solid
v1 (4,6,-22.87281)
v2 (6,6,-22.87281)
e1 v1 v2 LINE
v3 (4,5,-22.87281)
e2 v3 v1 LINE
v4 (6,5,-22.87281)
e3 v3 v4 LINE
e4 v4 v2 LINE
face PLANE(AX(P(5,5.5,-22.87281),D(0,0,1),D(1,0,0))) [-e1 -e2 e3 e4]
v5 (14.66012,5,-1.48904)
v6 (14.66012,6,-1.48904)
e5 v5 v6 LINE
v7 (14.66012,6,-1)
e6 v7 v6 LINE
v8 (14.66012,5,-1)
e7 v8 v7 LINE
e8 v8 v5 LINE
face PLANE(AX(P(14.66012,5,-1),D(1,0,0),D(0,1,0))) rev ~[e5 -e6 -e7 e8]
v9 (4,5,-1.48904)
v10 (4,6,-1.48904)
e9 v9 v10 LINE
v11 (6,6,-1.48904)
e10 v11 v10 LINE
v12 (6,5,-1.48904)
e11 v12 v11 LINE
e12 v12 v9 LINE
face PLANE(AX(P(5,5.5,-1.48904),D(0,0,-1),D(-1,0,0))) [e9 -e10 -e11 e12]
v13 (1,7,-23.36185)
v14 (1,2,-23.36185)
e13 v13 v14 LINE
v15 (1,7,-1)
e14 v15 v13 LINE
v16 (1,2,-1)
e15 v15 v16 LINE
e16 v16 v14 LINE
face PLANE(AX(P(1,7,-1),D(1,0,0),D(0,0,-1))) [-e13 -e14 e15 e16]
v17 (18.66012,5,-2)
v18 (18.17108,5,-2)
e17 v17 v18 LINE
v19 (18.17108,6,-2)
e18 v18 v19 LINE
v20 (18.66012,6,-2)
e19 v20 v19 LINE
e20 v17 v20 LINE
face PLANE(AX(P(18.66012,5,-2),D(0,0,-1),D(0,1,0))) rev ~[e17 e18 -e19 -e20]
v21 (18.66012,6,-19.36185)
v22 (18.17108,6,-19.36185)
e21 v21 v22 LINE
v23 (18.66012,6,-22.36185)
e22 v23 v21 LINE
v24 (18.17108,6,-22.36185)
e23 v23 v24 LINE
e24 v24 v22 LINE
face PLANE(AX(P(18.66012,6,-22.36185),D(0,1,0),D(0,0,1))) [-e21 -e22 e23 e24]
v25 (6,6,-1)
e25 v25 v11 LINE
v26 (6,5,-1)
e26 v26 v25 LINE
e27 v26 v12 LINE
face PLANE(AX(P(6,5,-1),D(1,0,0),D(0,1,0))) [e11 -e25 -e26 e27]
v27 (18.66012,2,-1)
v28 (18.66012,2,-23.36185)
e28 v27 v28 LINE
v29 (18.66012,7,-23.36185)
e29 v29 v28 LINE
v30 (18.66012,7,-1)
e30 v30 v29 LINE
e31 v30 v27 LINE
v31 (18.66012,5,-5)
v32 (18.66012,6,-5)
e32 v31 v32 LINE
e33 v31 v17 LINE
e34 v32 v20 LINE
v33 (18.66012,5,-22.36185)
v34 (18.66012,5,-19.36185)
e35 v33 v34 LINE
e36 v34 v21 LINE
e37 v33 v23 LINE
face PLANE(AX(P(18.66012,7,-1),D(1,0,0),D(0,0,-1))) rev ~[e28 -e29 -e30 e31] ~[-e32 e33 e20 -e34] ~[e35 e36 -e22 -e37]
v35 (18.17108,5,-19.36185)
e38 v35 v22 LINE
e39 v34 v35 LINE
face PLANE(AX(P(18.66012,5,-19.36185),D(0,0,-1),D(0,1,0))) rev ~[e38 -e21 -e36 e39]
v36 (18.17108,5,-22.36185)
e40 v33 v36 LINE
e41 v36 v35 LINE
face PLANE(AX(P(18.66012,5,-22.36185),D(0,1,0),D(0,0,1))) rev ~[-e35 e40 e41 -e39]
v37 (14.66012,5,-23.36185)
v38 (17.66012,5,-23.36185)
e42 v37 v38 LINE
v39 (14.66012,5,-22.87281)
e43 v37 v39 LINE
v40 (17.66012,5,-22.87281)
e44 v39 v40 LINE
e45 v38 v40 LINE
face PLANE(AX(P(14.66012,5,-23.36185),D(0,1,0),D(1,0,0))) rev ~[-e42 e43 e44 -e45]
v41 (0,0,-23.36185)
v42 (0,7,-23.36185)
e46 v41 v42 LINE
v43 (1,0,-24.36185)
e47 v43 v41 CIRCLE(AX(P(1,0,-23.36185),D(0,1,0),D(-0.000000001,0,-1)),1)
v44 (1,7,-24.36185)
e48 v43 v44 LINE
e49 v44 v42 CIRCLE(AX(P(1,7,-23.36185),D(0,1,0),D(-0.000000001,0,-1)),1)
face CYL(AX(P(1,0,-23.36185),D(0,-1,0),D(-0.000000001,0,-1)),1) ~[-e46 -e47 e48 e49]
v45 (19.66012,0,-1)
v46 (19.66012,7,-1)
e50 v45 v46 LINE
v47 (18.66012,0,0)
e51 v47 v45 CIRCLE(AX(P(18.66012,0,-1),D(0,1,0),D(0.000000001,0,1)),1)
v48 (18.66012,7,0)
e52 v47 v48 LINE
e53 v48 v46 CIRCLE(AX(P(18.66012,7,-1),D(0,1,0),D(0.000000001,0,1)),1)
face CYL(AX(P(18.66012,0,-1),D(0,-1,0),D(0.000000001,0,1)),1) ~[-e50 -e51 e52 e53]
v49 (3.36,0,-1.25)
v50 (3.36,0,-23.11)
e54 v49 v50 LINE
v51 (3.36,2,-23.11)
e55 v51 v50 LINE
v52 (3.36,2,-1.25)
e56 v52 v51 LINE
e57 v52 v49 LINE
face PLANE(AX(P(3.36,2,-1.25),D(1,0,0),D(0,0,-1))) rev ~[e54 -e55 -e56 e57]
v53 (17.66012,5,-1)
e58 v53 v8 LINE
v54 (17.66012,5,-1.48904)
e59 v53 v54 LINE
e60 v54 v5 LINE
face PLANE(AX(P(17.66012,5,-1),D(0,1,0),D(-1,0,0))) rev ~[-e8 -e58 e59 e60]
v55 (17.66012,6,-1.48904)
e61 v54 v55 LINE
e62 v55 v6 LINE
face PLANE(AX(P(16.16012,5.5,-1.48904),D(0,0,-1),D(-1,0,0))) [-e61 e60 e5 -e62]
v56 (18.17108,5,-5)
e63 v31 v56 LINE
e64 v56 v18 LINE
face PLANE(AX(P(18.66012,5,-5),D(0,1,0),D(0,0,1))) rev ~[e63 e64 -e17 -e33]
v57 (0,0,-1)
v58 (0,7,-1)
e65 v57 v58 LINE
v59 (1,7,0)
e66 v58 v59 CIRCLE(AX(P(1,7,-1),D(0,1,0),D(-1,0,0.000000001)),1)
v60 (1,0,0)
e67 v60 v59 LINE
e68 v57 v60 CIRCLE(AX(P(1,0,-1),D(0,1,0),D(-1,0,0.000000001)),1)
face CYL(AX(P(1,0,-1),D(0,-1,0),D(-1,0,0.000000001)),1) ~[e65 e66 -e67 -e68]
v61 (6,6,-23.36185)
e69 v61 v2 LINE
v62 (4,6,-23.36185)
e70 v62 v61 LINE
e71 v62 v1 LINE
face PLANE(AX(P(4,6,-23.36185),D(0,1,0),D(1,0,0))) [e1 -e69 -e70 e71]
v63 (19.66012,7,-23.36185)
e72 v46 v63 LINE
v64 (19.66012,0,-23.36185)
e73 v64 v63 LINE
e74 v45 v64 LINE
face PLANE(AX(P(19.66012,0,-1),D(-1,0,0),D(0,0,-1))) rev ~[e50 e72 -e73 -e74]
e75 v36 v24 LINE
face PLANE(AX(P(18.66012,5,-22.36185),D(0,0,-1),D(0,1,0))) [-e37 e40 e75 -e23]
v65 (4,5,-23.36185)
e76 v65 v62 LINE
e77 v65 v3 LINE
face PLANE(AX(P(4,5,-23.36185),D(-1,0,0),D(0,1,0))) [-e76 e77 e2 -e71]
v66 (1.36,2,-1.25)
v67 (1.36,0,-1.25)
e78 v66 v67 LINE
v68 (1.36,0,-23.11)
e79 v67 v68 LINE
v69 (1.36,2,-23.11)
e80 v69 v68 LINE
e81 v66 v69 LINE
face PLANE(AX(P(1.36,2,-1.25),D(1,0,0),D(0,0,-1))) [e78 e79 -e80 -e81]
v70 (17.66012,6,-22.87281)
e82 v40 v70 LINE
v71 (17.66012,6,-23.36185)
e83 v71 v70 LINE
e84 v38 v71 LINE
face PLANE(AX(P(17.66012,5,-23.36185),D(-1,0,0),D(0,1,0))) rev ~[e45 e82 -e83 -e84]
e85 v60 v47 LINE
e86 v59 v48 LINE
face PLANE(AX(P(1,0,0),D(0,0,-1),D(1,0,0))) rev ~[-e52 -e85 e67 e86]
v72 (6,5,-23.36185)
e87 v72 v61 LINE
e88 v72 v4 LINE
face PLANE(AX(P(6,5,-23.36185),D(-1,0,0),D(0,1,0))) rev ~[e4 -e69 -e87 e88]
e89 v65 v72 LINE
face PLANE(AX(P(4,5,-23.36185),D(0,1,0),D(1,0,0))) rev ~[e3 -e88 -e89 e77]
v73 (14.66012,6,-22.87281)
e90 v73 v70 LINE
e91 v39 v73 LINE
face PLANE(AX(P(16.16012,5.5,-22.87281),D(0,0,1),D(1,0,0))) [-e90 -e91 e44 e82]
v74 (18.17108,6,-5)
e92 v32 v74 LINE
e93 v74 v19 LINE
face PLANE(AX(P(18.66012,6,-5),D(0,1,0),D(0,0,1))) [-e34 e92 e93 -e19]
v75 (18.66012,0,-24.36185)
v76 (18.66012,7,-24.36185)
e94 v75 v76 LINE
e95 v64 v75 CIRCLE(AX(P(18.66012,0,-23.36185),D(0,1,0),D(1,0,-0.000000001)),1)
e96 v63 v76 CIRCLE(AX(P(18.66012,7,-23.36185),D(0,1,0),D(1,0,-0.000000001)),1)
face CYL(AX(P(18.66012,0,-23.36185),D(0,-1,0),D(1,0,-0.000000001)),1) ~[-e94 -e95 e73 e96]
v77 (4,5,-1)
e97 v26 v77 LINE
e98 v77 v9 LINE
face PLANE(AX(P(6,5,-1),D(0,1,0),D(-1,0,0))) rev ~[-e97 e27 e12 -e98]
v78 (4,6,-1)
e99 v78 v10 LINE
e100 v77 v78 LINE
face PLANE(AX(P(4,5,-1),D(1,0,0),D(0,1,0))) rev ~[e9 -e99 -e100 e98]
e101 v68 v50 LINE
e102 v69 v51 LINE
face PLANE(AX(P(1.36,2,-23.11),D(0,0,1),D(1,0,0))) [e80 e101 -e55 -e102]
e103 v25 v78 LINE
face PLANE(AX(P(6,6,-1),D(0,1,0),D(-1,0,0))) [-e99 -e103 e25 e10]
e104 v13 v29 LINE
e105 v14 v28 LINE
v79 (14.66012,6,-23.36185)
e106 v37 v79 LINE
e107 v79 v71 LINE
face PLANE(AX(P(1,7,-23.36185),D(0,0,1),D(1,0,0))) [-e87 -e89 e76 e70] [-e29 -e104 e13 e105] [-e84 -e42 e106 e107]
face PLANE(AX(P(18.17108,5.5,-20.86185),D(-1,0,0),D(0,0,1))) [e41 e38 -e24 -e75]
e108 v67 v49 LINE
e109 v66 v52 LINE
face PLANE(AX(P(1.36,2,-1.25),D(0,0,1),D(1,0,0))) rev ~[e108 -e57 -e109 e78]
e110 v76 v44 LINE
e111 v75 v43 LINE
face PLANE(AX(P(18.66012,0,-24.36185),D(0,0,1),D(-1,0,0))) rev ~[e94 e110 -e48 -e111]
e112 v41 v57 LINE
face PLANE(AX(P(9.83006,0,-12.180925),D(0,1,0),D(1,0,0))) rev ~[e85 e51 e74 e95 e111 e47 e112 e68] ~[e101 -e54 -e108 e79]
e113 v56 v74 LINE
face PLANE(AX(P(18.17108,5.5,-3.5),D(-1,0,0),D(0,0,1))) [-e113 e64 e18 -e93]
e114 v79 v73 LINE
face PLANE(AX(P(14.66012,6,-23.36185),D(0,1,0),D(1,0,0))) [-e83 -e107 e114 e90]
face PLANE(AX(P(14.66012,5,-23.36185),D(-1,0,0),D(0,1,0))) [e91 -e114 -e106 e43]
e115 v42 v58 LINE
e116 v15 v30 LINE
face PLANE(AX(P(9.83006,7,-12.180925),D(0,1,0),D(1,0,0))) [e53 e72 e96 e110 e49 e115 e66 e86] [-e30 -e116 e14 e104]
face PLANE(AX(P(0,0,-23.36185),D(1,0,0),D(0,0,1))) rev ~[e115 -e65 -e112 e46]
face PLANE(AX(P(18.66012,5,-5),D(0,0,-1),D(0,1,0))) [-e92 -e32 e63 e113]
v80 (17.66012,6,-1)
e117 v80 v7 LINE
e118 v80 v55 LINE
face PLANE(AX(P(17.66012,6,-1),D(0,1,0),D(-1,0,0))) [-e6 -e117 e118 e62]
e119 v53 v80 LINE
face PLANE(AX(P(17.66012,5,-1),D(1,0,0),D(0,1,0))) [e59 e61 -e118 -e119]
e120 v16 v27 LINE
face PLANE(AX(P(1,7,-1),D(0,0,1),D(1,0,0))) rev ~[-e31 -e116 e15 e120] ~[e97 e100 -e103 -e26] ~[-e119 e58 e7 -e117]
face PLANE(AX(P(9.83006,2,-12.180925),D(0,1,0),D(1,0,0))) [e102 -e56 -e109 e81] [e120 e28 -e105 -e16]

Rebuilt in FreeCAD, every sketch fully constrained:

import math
import FreeCAD as App
import Part
import Sketcher

V = App.Vector


def add_polygon(sketch, points):
    """Adds a closed chain of lines whose ends are joined by coincident constraints."""
    first, n = sketch.GeometryCount, len(points)
    for a, b in zip(points, points[1:] + points[:1]):
        sketch.addGeometry(Part.LineSegment(App.Vector(*a, 0), App.Vector(*b, 0)), False)
    for i in range(n):
        sketch.addConstraint(Sketcher.Constraint("Coincident", first + i, 2, first + (i + 1) % n, 1))

doc = App.newDocument("Part")
params = doc.addObject("Spreadsheet::Sheet", "Params")
for row, (alias, value) in enumerate([
    ("sketch1_radius", "1 mm"),
    ("pad1_length", "7 mm"),
    ("pocket1_length", "5 mm"),
    ("sketch3_width", "2 mm"),
    ("sketch3_height", "21.86 mm"),
    ("sketch4_width", "3 mm"),
    ("sketch4_height", "1 mm"),
    ("pad2_length", "0.48904 mm"),
    ("sketch5_width", "1 mm"),
    ("sketch5_height", "3 mm"),
    ("pad3_length", "0.48904 mm"),
    ("sketch6_width", "3 mm"),
    ("sketch6_height", "1 mm"),
    ("pad4_length", "0.48904 mm"),
    ("sketch7_width", "1 mm"),
    ("sketch7_height", "3 mm"),
    ("pad5_length", "0.48904 mm"),
    ("sketch8_width", "2 mm"),
    ("sketch8_height", "1 mm"),
    ("pad6_length", "0.48904 mm"),
    ("sketch9_width", "2 mm"),
    ("sketch9_height", "1 mm"),
    ("pad7_length", "0.48904 mm"),
], start=1):
    params.set(f"A{row}", alias)
    params.set(f"B{row}", "=" + value)
    params.setAlias(f"B{row}", alias)

body = doc.addObject("PartDesign::Body", "Body")

# Sketch on XZ plane
sketch1 = body.newObject("Sketcher::SketchObject", "Sketch")
sketch1.AttachmentSupport = (doc.getObject("XZ_Plane"), [""])
sketch1.MapMode = "FlatFace"
sketch1.addGeometry(Part.LineSegment(V(1, 0, 0), V(18.7, 0, 0)), False)
sketch1.addGeometry(Part.ArcOfCircle(Part.Circle(V(18.7, -1, 0), V(0, 0, 1), 1), math.radians(0), math.radians(90)), False)
sketch1.addGeometry(Part.LineSegment(V(19.7, -1, 0), V(19.7, -23.4, 0)), False)
sketch1.addGeometry(Part.ArcOfCircle(Part.Circle(V(18.7, -23.4, 0), V(0, 0, 1), 1), math.radians(-90), math.radians(0)), False)
sketch1.addGeometry(Part.LineSegment(V(18.7, -24.4, 0), V(1, -24.4, 0)), False)
sketch1.addGeometry(Part.ArcOfCircle(Part.Circle(V(1, -23.4, 0), V(0, 0, 1), 1), math.radians(-180), math.radians(-90)), False)
sketch1.addGeometry(Part.LineSegment(V(0, -23.4, 0), V(0, -1, 0)), False)
sketch1.addGeometry(Part.ArcOfCircle(Part.Circle(V(1, -1, 0), V(0, 0, 1), 1), math.radians(90), math.radians(180)), False)
sketch1.addConstraint(Sketcher.Constraint("Tangent", 0, 2, 1, 2))
sketch1.addConstraint(Sketcher.Constraint("Tangent", 1, 1, 2, 1))
sketch1.addConstraint(Sketcher.Constraint("Tangent", 2, 2, 3, 2))
sketch1.addConstraint(Sketcher.Constraint("Tangent", 3, 1, 4, 1))
sketch1.addConstraint(Sketcher.Constraint("Tangent", 4, 2, 5, 2))
sketch1.addConstraint(Sketcher.Constraint("Tangent", 5, 1, 6, 1))
sketch1.addConstraint(Sketcher.Constraint("Tangent", 6, 2, 7, 2))
sketch1.addConstraint(Sketcher.Constraint("Tangent", 7, 1, 0, 1))
sketch1.addConstraint(Sketcher.Constraint("Horizontal", 0))
sketch1.addConstraint(Sketcher.Constraint("Vertical", 2))
sketch1.addConstraint(Sketcher.Constraint("Horizontal", 4))
sketch1.addConstraint(Sketcher.Constraint("Vertical", 6))
sketch1.addConstraint(Sketcher.Constraint("Equal", 1, 3))
sketch1.addConstraint(Sketcher.Constraint("Equal", 3, 5))
sketch1.addConstraint(Sketcher.Constraint("Equal", 5, 7))
sketch1.addConstraint(Sketcher.Constraint("PointOnObject", 0, 2, -1))
sketch1.addConstraint(Sketcher.Constraint("PointOnObject", 5, 1, -2))
sketch1.addConstraint(Sketcher.Constraint("Radius", 1, 1.0))
sketch1.addConstraint(Sketcher.Constraint("DistanceX", 0, 1, 0, 2, 17.66012))
sketch1.addConstraint(Sketcher.Constraint("DistanceY", 2, 2, 2, 1, 22.36185))
sketch1.setExpression("Constraints[17]", "Params.sketch1_radius")
pad1 = body.newObject("PartDesign::Pad", "Pad")
pad1.Profile = sketch1
pad1.setExpression("Length", "Params.pad1_length")
pad1.Reversed = True

# Sketch on XZ plane
sketch2 = body.newObject("Sketcher::SketchObject", "Sketch001")
sketch2.AttachmentSupport = (doc.getObject("XZ_Plane"), [""])
sketch2.MapMode = "FlatFace"
sketch2.AttachmentOffset = App.Placement(V(0, 0, -7), App.Rotation())
add_polygon(sketch2, [(1, -23), (1, -1), (19, -1), (19, -23)])  # lines 0-3
sketch2.addConstraint(Sketcher.Constraint("Vertical", 0))
sketch2.addConstraint(Sketcher.Constraint("Horizontal", 1))
sketch2.addConstraint(Sketcher.Constraint("Vertical", 2))
sketch2.addConstraint(Sketcher.Constraint("Horizontal", 3))
sketch2.addConstraint(Sketcher.Constraint("DistanceX", -1, 1, 0, 2, 1.0))
sketch2.addConstraint(Sketcher.Constraint("DistanceY", 0, 2, -1, 1, 1.0))
sketch2.addConstraint(Sketcher.Constraint("DistanceX", 1, 1, 1, 2, 17.66012))
sketch2.addConstraint(Sketcher.Constraint("DistanceY", 0, 1, 0, 2, 22.36185))
pocket1 = body.newObject("PartDesign::Pocket", "Pocket")
pocket1.Profile = sketch2
pocket1.setExpression("Length", "Params.pocket1_length")
pocket1.Reversed = True

# Sketch on XZ plane
sketch3 = body.newObject("Sketcher::SketchObject", "Sketch002")
sketch3.AttachmentSupport = (doc.getObject("XZ_Plane"), [""])
sketch3.MapMode = "FlatFace"
sketch3.AttachmentOffset = App.Placement(V(0, 0, -2), App.Rotation())
add_polygon(sketch3, [(1.4, -23.1), (1.4, -1.2), (3.4, -1.2), (3.4, -23.1)])  # lines 0-3
sketch3.addConstraint(Sketcher.Constraint("Vertical", 0))
sketch3.addConstraint(Sketcher.Constraint("Horizontal", 1))
sketch3.addConstraint(Sketcher.Constraint("Vertical", 2))
sketch3.addConstraint(Sketcher.Constraint("Horizontal", 3))
sketch3.addConstraint(Sketcher.Constraint("DistanceX", 1, 1, 1, 2, 2.0))
sketch3.addConstraint(Sketcher.Constraint("DistanceY", 0, 1, 0, 2, 21.86))
sketch3.addConstraint(Sketcher.Constraint("DistanceX", -1, 1, 0, 2, 1.36))
sketch3.addConstraint(Sketcher.Constraint("DistanceY", 0, 2, -1, 1, 1.25))
sketch3.setExpression("Constraints[8]", "Params.sketch3_width")
sketch3.setExpression("Constraints[9]", "Params.sketch3_height")
pocket2 = body.newObject("PartDesign::Pocket", "Pocket001")
pocket2.Profile = sketch3
pocket2.Type = "ThroughAll"
pocket2.Reversed = True

# Sketch on XY plane
sketch4 = body.newObject("Sketcher::SketchObject", "Sketch003")
sketch4.AttachmentSupport = (doc.getObject("XY_Plane"), [""])
sketch4.MapMode = "FlatFace"
sketch4.AttachmentOffset = App.Placement(V(0, 0, -23.36185), App.Rotation())
add_polygon(sketch4, [(14.7, 6), (14.7, 5), (17.7, 5), (17.7, 6)])  # lines 0-3
sketch4.addConstraint(Sketcher.Constraint("Vertical", 0))
sketch4.addConstraint(Sketcher.Constraint("Horizontal", 1))
sketch4.addConstraint(Sketcher.Constraint("Vertical", 2))
sketch4.addConstraint(Sketcher.Constraint("Horizontal", 3))
sketch4.addConstraint(Sketcher.Constraint("DistanceX", 1, 1, 1, 2, 3.0))
sketch4.addConstraint(Sketcher.Constraint("DistanceY", 0, 2, 0, 1, 1.0))
sketch4.addConstraint(Sketcher.Constraint("DistanceY", -1, 1, 0, 2, 5.0))
sketch4.addConstraint(Sketcher.Constraint("DistanceX", -1, 1, 0, 2, 14.66012))
sketch4.setExpression("Constraints[8]", "Params.sketch4_width")
sketch4.setExpression("Constraints[9]", "Params.sketch4_height")
pad2 = body.newObject("PartDesign::Pad", "Pad001")
pad2.Profile = sketch4
pad2.setExpression("Length", "Params.pad2_length")

# Sketch on YZ plane
sketch5 = body.newObject("Sketcher::SketchObject", "Sketch004")
sketch5.AttachmentSupport = (doc.getObject("YZ_Plane"), [""])
sketch5.MapMode = "FlatFace"
sketch5.AttachmentOffset = App.Placement(V(0, 0, 18.66012), App.Rotation())
add_polygon(sketch5, [(6, -22.4), (5, -22.4), (5, -19.4), (6, -19.4)])  # lines 0-3
sketch5.addConstraint(Sketcher.Constraint("Horizontal", 0))
sketch5.addConstraint(Sketcher.Constraint("Vertical", 1))
sketch5.addConstraint(Sketcher.Constraint("Horizontal", 2))
sketch5.addConstraint(Sketcher.Constraint("Vertical", 3))
sketch5.addConstraint(Sketcher.Constraint("DistanceX", 0, 2, 0, 1, 1.0))
sketch5.addConstraint(Sketcher.Constraint("DistanceY", 1, 1, 1, 2, 3.0))
sketch5.addConstraint(Sketcher.Constraint("DistanceX", -1, 1, 0, 2, 5.0))
sketch5.addConstraint(Sketcher.Constraint("DistanceY", 0, 2, -1, 1, 22.36185))
sketch5.setExpression("Constraints[8]", "Params.sketch5_width")
sketch5.setExpression("Constraints[9]", "Params.sketch5_height")
pad3 = body.newObject("PartDesign::Pad", "Pad002")
pad3.Profile = sketch5
pad3.setExpression("Length", "Params.pad3_length")
pad3.Reversed = True

# Sketch on XY plane
sketch6 = body.newObject("Sketcher::SketchObject", "Sketch005")
sketch6.AttachmentSupport = (doc.getObject("XY_Plane"), [""])
sketch6.MapMode = "FlatFace"
sketch6.AttachmentOffset = App.Placement(V(0, 0, -1), App.Rotation())
add_polygon(sketch6, [(17.7, 6), (17.7, 5), (14.7, 5), (14.7, 6)])  # lines 0-3
sketch6.addConstraint(Sketcher.Constraint("Vertical", 0))
sketch6.addConstraint(Sketcher.Constraint("Horizontal", 1))
sketch6.addConstraint(Sketcher.Constraint("Vertical", 2))
sketch6.addConstraint(Sketcher.Constraint("Horizontal", 3))
sketch6.addConstraint(Sketcher.Constraint("DistanceX", 1, 2, 1, 1, 3.0))
sketch6.addConstraint(Sketcher.Constraint("DistanceY", 0, 2, 0, 1, 1.0))
sketch6.addConstraint(Sketcher.Constraint("DistanceY", -1, 1, 0, 2, 5.0))
sketch6.addConstraint(Sketcher.Constraint("DistanceX", -1, 1, 0, 2, 17.66012))
sketch6.setExpression("Constraints[8]", "Params.sketch6_width")
sketch6.setExpression("Constraints[9]", "Params.sketch6_height")
pad4 = body.newObject("PartDesign::Pad", "Pad003")
pad4.Profile = sketch6
pad4.setExpression("Length", "Params.pad4_length")
pad4.Reversed = True

# Sketch on YZ plane
sketch7 = body.newObject("Sketcher::SketchObject", "Sketch006")
sketch7.AttachmentSupport = (doc.getObject("YZ_Plane"), [""])
sketch7.MapMode = "FlatFace"
sketch7.AttachmentOffset = App.Placement(V(0, 0, 18.66012), App.Rotation())
add_polygon(sketch7, [(6, -5), (5, -5), (5, -2), (6, -2)])  # lines 0-3
sketch7.addConstraint(Sketcher.Constraint("Horizontal", 0))
sketch7.addConstraint(Sketcher.Constraint("Vertical", 1))
sketch7.addConstraint(Sketcher.Constraint("Horizontal", 2))
sketch7.addConstraint(Sketcher.Constraint("Vertical", 3))
sketch7.addConstraint(Sketcher.Constraint("DistanceX", 0, 2, 0, 1, 1.0))
sketch7.addConstraint(Sketcher.Constraint("DistanceY", 1, 1, 1, 2, 3.0))
sketch7.addConstraint(Sketcher.Constraint("DistanceX", -1, 1, 0, 2, 5.0))
sketch7.addConstraint(Sketcher.Constraint("DistanceY", 0, 2, -1, 1, 5.0))
sketch7.setExpression("Constraints[8]", "Params.sketch7_width")
sketch7.setExpression("Constraints[9]", "Params.sketch7_height")
pad5 = body.newObject("PartDesign::Pad", "Pad004")
pad5.Profile = sketch7
pad5.setExpression("Length", "Params.pad5_length")
pad5.Reversed = True

# Sketch on XY plane
sketch8 = body.newObject("Sketcher::SketchObject", "Sketch007")
sketch8.AttachmentSupport = (doc.getObject("XY_Plane"), [""])
sketch8.MapMode = "FlatFace"
sketch8.AttachmentOffset = App.Placement(V(0, 0, -23.36185), App.Rotation())
add_polygon(sketch8, [(4, 6), (4, 5), (6, 5), (6, 6)])  # lines 0-3
sketch8.addConstraint(Sketcher.Constraint("Vertical", 0))
sketch8.addConstraint(Sketcher.Constraint("Horizontal", 1))
sketch8.addConstraint(Sketcher.Constraint("Vertical", 2))
sketch8.addConstraint(Sketcher.Constraint("Horizontal", 3))
sketch8.addConstraint(Sketcher.Constraint("DistanceX", 1, 1, 1, 2, 2.0))
sketch8.addConstraint(Sketcher.Constraint("DistanceY", 0, 2, 0, 1, 1.0))
sketch8.addConstraint(Sketcher.Constraint("DistanceX", -1, 1, 0, 2, 4.0))
sketch8.addConstraint(Sketcher.Constraint("DistanceY", -1, 1, 0, 2, 5.0))
sketch8.setExpression("Constraints[8]", "Params.sketch8_width")
sketch8.setExpression("Constraints[9]", "Params.sketch8_height")
pad6 = body.newObject("PartDesign::Pad", "Pad005")
pad6.Profile = sketch8
pad6.setExpression("Length", "Params.pad6_length")

# Sketch on XY plane
sketch9 = body.newObject("Sketcher::SketchObject", "Sketch008")
sketch9.AttachmentSupport = (doc.getObject("XY_Plane"), [""])
sketch9.MapMode = "FlatFace"
sketch9.AttachmentOffset = App.Placement(V(0, 0, -1), App.Rotation())
add_polygon(sketch9, [(6, 6), (6, 5), (4, 5), (4, 6)])  # lines 0-3
sketch9.addConstraint(Sketcher.Constraint("Vertical", 0))
sketch9.addConstraint(Sketcher.Constraint("Horizontal", 1))
sketch9.addConstraint(Sketcher.Constraint("Vertical", 2))
sketch9.addConstraint(Sketcher.Constraint("Horizontal", 3))
sketch9.addConstraint(Sketcher.Constraint("DistanceX", 1, 2, 1, 1, 2.0))
sketch9.addConstraint(Sketcher.Constraint("DistanceY", 0, 2, 0, 1, 1.0))
sketch9.addConstraint(Sketcher.Constraint("DistanceX", -1, 1, 0, 2, 6.0))
sketch9.addConstraint(Sketcher.Constraint("DistanceY", -1, 1, 0, 2, 5.0))
sketch9.setExpression("Constraints[8]", "Params.sketch9_width")
sketch9.setExpression("Constraints[9]", "Params.sketch9_height")
pad7 = body.newObject("PartDesign::Pad", "Pad006")
pad7.Profile = sketch9
pad7.setExpression("Length", "Params.pad7_length")
pad7.Reversed = True

doc.recompute()
